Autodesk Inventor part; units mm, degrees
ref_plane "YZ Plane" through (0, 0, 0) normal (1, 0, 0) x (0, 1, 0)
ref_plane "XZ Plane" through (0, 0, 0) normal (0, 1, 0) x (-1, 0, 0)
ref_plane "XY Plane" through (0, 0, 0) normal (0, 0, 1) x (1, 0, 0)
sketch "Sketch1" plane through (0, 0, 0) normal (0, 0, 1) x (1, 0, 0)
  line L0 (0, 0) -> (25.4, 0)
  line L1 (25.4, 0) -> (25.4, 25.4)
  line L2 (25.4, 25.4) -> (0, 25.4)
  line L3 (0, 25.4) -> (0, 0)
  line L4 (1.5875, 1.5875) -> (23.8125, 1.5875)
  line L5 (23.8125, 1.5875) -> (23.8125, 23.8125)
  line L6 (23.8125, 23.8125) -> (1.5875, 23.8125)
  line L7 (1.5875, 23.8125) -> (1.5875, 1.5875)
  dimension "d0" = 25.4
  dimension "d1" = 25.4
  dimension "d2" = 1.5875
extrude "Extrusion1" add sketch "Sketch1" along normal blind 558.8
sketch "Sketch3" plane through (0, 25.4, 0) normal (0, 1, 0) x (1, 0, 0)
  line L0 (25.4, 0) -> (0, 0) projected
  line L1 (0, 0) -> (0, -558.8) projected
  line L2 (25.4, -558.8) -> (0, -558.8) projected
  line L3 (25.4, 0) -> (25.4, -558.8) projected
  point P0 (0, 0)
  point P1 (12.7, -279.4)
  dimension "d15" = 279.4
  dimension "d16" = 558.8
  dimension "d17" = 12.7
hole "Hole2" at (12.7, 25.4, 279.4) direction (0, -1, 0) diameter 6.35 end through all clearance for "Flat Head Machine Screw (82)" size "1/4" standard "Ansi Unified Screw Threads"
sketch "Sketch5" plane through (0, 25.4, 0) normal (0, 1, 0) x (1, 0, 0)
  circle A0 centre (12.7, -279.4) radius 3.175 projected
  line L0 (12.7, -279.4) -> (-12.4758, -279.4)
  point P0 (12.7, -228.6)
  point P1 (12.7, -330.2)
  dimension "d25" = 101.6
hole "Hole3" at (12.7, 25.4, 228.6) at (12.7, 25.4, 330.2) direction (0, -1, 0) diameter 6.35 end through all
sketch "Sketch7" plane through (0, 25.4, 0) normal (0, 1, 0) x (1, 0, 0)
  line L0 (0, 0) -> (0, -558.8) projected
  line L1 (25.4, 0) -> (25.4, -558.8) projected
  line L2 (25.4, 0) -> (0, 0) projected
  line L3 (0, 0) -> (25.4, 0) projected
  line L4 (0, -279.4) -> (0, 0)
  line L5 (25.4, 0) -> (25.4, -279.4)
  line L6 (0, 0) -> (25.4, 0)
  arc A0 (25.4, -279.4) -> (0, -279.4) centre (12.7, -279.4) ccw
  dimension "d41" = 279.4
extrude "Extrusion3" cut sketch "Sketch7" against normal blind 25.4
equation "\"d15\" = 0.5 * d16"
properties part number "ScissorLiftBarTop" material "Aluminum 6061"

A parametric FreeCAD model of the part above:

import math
import FreeCAD as App
import Part
import Sketcher

V = App.Vector
Q = App.Units.Quantity

doc = App.newDocument("Part")
body = doc.addObject("PartDesign::Body", "Body")

sketch1 = body.newObject("Sketcher::SketchObject", "Sketch")
sketch1.AttachmentSupport = (doc.getObject("XY_Plane"), [""])
sketch1.MapMode = "FlatFace"
sketch1.addGeometry([
    Part.LineSegment(V(0, 25, 0), V(0, 0, 0)),
    Part.LineSegment(V(0, 0, 0), V(25, 0, 0)),
    Part.LineSegment(V(25, 0, 0), V(25, 25, 0)),
    Part.LineSegment(V(25, 25, 0), V(0, 25, 0)),
    Part.LineSegment(V(24, 2, 0), V(2, 2, 0)),
    Part.LineSegment(V(2, 2, 0), V(2, 24, 0)),
    Part.LineSegment(V(2, 24, 0), V(24, 24, 0)),
    Part.LineSegment(V(24, 24, 0), V(24, 2, 0)),
], False)
sketch1.addConstraint([
    Sketcher.Constraint("Coincident", 0, 2, 1, 1),
    Sketcher.Constraint("Coincident", 1, 2, 2, 1),
    Sketcher.Constraint("Coincident", 2, 2, 3, 1),
    Sketcher.Constraint("Coincident", 3, 2, 0, 1),
    Sketcher.Constraint("Coincident", 4, 2, 5, 1),
    Sketcher.Constraint("Coincident", 5, 2, 6, 1),
    Sketcher.Constraint("Coincident", 6, 2, 7, 1),
    Sketcher.Constraint("Coincident", 7, 2, 4, 1),
    Sketcher.Constraint("Vertical", 0),
    Sketcher.Constraint("Horizontal", 1),
    Sketcher.Constraint("Vertical", 2),
    Sketcher.Constraint("Horizontal", 3),
    Sketcher.Constraint("Horizontal", 4),
    Sketcher.Constraint("Vertical", 5),
    Sketcher.Constraint("Horizontal", 6),
    Sketcher.Constraint("Vertical", 7),
    Sketcher.Constraint("Coincident", 0, 2, -1, 1),
    Sketcher.Constraint("Equal", 3, 0),
    Sketcher.Constraint("Equal", 6, 5),
    Sketcher.Constraint("DistanceX", 1, 1, 1, 2, Q("1 in")),
    Sketcher.Constraint("DistanceX", -1, 1, 4, 2, Q("0.0625 in")),
    Sketcher.Constraint("DistanceY", -1, 1, 4, 2, Q("0.0625 in")),
    Sketcher.Constraint("DistanceY", 5, 2, 3, 2, Q("0.0625 in")),
])
pad1 = body.newObject("PartDesign::Pad", "Pad")
pad1.Profile = sketch1
pad1.Length = Q("22 in")

sketch2 = body.newObject("Sketcher::SketchObject", "Sketch001")
sketch2.AttachmentSupport = (doc.getObject("XZ_Plane"), [""])
sketch2.MapMode = "FlatFace"
sketch2.AttachmentOffset = App.Placement(V(0, 0, -1 * 25.4), App.Rotation())
sketch2.addGeometry(Part.Circle(V(12.7, 279.4, 0), V(0, 0, 1), 3.2), False)
sketch2.addConstraint([
    Sketcher.Constraint("Diameter", 0, Q("0.25 in")),
    Sketcher.Constraint("DistanceY", -1, 1, 0, 3, Q("11 in")),
    Sketcher.Constraint("DistanceX", -1, 1, 0, 3, Q("0.5 in")),
])
doc.recompute()
hole = body.newObject("PartDesign::Hole", "Hole")
hole.Profile = sketch2
hole.ThreadType = "None"
hole.Diameter = Q("0.25 in")
hole.DepthType = "ThroughAll"
hole.Reversed = True

sketch3 = body.newObject("Sketcher::SketchObject", "Sketch002")
sketch3.AttachmentSupport = (doc.getObject("XZ_Plane"), [""])
sketch3.MapMode = "FlatFace"
sketch3.AttachmentOffset = App.Placement(V(0, 0, -1 * 25.4), App.Rotation())
sketch3.addGeometry([
    Part.Circle(V(12.7, 228.6, 0), V(0, 0, 1), 3.2),
    Part.Circle(V(12.7, 330.2, 0), V(0, 0, 1), 3.2),
], False)
sketch3.addConstraint([
    Sketcher.Constraint("Equal", 0, 1),
    Sketcher.Constraint("Vertical", 0, 3, 1, 3),
    Sketcher.Constraint("Diameter", 0, Q("0.25 in")),
    Sketcher.Constraint("DistanceY", -1, 1, 0, 3, Q("9 in")),
    Sketcher.Constraint("DistanceY", -1, 1, 1, 3, Q("13 in")),
    Sketcher.Constraint("DistanceX", -1, 1, 0, 3, Q("0.5 in")),
])
doc.recompute()
hole2 = body.newObject("PartDesign::Hole", "Hole001")
hole2.Profile = sketch3
hole2.ThreadType = "None"
hole2.Diameter = Q("0.25 in")
hole2.DepthType = "ThroughAll"
hole2.Reversed = True

sketch4 = body.newObject("Sketcher::SketchObject", "Sketch003")
sketch4.AttachmentSupport = (doc.getObject("XZ_Plane"), [""])
sketch4.MapMode = "FlatFace"
sketch4.AttachmentOffset = App.Placement(V(0, 0, -1 * 25.4), App.Rotation())
sketch4.addGeometry([
    Part.LineSegment(V(25, 0, 0), V(0, 0, 0)),
    Part.LineSegment(V(0, 0, 0), V(0, 279, 0)),
    Part.ArcOfCircle(Part.Circle(V(13, 279, 0), V(0, 0, 1), 13), math.radians(180), math.radians(360)),
    Part.LineSegment(V(25, 279, 0), V(25, 0, 0)),
], False)
sketch4.addConstraint([
    Sketcher.Constraint("Coincident", 0, 2, 1, 1),
    Sketcher.Constraint("Tangent", 1, 2, 2, 1),
    Sketcher.Constraint("Tangent", 2, 2, 3, 1),
    Sketcher.Constraint("Coincident", 3, 2, 0, 1),
    Sketcher.Constraint("Horizontal", 0),
    Sketcher.Constraint("Vertical", 1),
    Sketcher.Constraint("Vertical", 3),
    Sketcher.Constraint("Coincident", 0, 2, -1, 1),
    Sketcher.Constraint("DistanceY", 1, 1, 1, 2, Q("11 in")),
    Sketcher.Constraint("Radius", 2, Q("0.5 in")),
])
pocket1 = body.newObject("PartDesign::Pocket", "Pocket")
pocket1.Profile = sketch4
pocket1.Length = Q("1 in")
pocket1.Reversed = True

doc.recompute()
